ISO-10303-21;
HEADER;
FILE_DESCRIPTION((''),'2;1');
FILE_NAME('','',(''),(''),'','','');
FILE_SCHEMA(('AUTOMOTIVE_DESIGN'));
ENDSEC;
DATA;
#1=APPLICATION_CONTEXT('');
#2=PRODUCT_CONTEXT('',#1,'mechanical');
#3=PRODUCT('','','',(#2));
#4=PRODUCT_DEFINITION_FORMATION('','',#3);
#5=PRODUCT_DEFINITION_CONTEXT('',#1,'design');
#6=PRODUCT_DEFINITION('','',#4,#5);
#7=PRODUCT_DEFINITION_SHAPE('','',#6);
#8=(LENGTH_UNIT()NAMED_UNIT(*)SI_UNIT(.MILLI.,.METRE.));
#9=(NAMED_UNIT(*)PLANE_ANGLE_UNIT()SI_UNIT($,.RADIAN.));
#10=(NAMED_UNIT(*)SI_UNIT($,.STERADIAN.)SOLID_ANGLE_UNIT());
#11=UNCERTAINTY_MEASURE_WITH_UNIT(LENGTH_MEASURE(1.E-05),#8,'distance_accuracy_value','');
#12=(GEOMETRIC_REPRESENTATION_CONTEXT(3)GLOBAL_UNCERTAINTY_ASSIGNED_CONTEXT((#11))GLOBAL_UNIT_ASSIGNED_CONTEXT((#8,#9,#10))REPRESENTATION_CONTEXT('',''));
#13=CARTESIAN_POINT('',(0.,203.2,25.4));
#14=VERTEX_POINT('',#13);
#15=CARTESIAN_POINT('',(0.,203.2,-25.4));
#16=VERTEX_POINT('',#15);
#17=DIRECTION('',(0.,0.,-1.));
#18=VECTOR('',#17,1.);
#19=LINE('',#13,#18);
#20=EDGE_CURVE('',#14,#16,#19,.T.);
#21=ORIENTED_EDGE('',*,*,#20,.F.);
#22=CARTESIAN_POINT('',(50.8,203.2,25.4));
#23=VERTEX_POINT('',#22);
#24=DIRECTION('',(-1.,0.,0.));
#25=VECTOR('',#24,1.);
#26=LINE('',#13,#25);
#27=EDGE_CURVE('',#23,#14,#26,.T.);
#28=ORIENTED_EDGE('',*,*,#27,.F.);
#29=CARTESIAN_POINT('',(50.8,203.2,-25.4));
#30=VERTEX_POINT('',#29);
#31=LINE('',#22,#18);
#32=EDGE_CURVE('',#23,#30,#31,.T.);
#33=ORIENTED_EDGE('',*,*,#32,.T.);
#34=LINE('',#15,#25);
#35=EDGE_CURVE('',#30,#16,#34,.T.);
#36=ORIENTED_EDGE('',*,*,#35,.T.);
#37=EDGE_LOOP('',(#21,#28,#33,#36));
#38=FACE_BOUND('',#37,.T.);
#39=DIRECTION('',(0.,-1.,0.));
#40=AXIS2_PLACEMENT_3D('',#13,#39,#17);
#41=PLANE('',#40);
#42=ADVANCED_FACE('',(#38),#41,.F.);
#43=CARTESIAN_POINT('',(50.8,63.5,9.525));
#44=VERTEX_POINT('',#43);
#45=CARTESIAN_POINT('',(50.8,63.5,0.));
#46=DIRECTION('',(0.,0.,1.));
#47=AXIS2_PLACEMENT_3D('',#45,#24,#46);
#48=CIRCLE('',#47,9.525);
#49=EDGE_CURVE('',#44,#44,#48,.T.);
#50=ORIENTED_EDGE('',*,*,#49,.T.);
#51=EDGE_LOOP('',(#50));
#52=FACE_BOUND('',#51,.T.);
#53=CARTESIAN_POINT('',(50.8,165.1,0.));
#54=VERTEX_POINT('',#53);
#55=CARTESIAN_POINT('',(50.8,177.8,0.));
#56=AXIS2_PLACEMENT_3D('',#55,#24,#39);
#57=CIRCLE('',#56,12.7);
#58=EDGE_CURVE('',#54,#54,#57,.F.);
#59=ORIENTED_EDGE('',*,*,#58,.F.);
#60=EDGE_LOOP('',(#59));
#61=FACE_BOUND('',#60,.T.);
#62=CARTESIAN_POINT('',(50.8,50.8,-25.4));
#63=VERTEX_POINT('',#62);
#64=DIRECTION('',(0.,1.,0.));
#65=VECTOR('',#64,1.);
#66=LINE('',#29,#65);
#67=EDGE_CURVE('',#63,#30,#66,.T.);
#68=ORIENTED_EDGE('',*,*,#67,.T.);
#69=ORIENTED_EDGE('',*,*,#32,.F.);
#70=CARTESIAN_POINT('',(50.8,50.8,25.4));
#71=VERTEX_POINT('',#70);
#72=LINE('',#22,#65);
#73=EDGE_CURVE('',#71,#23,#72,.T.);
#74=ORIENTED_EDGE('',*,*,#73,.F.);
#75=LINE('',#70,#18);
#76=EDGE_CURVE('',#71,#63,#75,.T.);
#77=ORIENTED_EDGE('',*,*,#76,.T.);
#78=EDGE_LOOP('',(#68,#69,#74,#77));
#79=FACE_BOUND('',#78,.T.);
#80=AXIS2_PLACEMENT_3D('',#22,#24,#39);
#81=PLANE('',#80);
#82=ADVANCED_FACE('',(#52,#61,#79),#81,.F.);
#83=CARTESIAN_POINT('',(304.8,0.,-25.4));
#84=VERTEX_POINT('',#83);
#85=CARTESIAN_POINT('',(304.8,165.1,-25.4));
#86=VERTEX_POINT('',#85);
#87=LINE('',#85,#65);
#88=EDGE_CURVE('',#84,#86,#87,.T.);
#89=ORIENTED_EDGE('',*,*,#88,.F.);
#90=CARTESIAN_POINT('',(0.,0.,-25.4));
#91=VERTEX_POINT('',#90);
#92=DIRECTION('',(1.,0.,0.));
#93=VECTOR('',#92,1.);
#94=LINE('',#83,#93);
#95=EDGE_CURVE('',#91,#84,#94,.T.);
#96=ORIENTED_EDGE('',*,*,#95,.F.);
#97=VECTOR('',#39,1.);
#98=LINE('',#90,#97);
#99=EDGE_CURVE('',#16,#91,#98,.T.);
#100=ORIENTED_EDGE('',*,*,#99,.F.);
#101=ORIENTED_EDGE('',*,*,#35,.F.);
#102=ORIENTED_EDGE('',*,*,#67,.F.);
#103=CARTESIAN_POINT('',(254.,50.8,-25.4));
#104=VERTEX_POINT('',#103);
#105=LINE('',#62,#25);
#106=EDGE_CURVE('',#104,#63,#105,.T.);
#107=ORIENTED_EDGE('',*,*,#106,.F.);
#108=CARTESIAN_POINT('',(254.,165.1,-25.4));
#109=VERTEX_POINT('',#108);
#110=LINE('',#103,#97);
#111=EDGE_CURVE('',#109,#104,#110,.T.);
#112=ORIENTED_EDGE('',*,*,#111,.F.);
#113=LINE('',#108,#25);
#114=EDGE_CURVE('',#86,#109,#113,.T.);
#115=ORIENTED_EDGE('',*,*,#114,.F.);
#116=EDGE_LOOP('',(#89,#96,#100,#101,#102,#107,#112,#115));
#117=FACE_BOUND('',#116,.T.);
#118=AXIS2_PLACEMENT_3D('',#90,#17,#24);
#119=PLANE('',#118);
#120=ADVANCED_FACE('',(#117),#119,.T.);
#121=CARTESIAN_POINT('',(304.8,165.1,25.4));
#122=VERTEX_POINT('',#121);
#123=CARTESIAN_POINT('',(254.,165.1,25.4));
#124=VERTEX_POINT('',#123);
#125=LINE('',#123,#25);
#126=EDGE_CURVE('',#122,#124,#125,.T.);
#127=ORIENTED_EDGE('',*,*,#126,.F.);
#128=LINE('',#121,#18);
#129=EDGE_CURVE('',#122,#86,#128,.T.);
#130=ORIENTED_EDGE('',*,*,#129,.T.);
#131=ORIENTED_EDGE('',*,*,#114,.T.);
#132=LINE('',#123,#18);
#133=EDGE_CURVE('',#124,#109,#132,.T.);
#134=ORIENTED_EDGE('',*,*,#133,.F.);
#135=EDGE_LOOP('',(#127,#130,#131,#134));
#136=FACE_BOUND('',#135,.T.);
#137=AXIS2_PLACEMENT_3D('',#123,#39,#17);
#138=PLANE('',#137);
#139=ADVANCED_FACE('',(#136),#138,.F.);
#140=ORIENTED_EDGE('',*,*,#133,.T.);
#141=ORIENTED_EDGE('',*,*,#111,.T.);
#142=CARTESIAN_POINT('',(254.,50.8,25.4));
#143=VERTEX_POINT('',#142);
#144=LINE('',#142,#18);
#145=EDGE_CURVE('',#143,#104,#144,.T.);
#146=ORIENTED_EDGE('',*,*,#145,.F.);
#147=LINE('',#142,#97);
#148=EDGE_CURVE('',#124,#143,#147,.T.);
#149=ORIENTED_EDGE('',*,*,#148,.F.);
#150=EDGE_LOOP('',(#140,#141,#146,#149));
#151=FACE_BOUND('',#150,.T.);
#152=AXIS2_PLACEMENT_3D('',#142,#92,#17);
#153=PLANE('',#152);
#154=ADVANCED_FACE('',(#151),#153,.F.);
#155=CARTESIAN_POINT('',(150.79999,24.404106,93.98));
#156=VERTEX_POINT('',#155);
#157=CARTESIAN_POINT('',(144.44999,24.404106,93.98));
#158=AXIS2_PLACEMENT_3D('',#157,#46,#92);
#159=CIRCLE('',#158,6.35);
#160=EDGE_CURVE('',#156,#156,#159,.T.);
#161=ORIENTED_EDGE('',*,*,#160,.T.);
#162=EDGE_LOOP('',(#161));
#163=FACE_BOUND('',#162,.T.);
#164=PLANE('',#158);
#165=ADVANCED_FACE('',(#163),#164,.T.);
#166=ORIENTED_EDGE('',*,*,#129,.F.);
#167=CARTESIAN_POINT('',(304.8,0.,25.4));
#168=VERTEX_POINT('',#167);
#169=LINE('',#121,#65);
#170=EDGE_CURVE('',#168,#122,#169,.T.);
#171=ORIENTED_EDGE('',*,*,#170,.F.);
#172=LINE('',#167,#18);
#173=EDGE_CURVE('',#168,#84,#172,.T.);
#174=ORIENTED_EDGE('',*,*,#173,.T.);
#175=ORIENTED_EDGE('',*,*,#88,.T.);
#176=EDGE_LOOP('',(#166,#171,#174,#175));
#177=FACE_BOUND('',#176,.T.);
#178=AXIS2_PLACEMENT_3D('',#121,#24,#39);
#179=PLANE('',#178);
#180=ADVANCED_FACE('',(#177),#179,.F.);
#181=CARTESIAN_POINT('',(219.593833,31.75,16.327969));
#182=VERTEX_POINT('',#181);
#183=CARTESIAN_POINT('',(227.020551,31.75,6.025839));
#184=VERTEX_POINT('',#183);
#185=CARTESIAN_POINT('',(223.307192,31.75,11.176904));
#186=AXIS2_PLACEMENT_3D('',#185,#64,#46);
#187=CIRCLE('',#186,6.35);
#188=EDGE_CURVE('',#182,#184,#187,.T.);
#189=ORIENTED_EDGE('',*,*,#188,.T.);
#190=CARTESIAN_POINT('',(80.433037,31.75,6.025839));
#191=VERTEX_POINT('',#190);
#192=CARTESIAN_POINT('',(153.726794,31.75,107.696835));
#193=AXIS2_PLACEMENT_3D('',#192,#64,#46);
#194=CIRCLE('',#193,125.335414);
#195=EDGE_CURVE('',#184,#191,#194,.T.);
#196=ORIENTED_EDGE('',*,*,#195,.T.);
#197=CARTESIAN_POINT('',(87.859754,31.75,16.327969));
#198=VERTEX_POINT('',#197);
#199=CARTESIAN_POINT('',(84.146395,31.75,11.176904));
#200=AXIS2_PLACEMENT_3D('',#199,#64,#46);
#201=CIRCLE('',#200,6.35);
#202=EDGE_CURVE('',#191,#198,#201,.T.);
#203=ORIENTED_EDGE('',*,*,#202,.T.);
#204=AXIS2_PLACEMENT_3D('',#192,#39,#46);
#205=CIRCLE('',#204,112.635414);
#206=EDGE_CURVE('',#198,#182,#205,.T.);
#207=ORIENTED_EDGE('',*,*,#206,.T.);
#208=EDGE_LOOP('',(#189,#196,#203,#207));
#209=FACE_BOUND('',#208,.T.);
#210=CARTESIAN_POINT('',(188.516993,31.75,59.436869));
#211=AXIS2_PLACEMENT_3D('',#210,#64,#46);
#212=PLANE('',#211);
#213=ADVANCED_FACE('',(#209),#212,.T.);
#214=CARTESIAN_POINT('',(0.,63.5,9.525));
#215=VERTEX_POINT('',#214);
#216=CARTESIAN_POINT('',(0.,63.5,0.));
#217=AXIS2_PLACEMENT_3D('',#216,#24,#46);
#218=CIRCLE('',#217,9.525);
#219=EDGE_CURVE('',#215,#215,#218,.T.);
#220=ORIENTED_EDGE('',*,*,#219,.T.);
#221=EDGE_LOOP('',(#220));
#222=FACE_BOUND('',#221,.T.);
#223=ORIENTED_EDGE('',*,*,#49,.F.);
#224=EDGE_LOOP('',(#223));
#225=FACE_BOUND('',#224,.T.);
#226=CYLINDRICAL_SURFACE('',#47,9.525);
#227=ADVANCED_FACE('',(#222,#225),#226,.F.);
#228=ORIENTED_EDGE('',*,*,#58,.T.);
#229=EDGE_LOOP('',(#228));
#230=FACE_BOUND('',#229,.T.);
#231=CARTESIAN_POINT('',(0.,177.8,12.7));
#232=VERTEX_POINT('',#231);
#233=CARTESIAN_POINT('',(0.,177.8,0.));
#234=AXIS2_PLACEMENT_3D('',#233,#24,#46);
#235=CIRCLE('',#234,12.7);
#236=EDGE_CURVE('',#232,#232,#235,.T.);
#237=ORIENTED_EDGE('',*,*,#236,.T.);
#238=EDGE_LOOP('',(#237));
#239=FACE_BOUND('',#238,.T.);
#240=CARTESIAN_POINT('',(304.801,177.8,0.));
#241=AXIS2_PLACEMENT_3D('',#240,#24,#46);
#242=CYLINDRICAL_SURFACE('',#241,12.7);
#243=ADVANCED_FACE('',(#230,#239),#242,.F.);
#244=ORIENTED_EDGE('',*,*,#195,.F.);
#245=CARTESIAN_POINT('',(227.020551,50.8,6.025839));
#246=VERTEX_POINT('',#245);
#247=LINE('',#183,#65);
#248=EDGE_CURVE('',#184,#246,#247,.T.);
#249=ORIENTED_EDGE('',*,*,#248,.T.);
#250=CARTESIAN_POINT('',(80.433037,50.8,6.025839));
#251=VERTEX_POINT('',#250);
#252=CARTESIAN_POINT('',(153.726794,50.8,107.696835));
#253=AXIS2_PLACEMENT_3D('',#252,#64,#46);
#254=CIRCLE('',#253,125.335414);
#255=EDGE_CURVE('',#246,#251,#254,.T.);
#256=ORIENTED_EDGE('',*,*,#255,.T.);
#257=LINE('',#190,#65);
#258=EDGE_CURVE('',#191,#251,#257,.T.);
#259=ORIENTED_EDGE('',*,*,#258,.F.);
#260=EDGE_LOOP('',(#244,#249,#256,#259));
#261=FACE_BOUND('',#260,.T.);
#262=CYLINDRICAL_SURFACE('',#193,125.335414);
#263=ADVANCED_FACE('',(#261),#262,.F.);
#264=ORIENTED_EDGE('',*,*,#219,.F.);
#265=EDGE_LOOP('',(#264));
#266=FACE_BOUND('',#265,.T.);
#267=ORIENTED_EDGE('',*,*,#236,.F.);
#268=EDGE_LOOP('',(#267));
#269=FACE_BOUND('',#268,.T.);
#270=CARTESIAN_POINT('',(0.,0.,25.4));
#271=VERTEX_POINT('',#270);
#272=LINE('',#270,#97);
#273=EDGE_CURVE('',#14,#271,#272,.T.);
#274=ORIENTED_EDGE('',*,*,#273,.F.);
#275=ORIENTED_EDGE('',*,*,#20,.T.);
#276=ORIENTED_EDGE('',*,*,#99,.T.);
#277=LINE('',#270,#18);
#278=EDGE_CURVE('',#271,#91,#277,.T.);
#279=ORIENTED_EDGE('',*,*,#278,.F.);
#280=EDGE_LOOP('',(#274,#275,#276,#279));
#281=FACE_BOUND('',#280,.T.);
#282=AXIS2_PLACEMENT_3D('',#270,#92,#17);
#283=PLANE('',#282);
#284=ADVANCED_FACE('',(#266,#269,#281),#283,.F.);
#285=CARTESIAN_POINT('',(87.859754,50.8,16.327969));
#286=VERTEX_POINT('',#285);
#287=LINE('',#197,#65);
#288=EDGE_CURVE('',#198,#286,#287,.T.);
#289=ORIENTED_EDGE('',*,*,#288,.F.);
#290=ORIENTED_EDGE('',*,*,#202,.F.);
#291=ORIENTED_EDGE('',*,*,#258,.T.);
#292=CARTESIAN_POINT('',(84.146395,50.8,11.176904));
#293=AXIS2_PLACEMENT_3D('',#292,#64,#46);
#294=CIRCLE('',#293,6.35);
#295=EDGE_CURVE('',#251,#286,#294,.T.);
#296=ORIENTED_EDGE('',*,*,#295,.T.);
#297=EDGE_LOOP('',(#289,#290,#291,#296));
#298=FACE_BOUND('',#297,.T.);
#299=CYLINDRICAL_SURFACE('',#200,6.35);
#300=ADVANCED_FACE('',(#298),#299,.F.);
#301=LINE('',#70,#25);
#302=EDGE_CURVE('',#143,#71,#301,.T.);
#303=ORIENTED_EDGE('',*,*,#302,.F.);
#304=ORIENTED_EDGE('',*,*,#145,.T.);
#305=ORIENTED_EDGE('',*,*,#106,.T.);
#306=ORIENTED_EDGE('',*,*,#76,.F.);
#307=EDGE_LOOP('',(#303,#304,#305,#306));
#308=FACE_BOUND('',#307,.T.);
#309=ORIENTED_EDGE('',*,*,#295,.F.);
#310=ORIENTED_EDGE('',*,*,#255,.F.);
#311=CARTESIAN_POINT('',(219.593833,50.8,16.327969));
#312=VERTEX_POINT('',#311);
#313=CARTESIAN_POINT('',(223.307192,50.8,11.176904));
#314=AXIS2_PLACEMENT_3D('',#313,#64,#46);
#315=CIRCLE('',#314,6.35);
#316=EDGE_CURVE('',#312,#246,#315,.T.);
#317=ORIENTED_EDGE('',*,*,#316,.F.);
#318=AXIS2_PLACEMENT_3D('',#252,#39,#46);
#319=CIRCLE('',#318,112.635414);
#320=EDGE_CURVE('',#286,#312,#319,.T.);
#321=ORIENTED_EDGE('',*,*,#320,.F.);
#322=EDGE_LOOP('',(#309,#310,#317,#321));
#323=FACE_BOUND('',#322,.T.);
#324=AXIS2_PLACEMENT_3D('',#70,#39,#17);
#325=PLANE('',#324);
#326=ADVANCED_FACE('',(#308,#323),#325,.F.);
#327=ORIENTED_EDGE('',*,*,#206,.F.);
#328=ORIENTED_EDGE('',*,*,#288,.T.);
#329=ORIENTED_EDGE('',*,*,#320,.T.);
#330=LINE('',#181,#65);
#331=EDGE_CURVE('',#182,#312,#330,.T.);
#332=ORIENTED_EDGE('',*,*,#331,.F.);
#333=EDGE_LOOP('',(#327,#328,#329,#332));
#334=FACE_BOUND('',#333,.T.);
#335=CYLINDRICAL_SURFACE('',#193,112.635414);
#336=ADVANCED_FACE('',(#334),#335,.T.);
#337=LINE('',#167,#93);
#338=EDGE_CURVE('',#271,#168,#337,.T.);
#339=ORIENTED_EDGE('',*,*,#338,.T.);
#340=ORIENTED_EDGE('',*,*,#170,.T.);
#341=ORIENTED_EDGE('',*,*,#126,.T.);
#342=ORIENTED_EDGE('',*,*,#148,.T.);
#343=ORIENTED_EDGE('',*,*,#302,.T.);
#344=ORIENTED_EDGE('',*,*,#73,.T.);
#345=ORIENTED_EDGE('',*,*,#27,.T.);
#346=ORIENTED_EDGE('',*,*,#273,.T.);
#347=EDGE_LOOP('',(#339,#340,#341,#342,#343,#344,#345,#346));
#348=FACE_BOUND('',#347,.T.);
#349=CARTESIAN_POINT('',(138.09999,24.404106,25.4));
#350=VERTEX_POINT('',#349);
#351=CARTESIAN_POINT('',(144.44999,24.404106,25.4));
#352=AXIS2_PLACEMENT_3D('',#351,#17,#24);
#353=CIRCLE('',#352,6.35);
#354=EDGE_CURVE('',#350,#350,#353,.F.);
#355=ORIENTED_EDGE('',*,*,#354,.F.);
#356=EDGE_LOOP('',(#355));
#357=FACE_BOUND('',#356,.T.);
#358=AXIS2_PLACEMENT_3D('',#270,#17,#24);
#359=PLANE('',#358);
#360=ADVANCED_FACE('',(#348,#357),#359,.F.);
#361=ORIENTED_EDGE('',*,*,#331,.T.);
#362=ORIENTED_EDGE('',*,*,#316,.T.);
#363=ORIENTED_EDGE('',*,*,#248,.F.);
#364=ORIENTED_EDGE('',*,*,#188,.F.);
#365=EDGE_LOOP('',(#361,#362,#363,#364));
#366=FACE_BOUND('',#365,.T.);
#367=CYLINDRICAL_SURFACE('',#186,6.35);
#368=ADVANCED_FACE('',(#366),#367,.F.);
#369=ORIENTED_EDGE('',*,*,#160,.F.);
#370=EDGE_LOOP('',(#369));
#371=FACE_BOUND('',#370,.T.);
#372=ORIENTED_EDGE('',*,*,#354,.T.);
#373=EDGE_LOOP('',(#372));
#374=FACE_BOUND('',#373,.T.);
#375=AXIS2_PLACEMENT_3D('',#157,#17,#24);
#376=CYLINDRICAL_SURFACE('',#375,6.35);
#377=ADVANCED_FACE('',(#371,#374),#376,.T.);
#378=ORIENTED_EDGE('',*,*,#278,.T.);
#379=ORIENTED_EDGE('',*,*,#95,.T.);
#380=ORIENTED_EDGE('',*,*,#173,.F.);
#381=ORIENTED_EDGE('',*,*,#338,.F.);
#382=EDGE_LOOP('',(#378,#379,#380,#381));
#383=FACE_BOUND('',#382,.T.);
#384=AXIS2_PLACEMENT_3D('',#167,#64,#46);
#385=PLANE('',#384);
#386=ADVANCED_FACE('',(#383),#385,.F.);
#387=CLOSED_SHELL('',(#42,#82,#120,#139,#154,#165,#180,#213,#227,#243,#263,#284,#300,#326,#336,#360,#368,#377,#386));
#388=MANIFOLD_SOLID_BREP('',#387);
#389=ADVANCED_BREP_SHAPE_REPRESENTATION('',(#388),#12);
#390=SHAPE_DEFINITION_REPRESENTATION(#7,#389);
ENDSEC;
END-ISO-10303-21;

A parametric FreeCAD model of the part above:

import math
import FreeCAD as App
import Part
import Sketcher
Q = App.Units.Quantity

doc = App.newDocument("Part")
body = doc.addObject("PartDesign::Body", "Body")

# Sketch on XY plane
sketch1 = body.newObject("Sketcher::SketchObject", "Sketch")
sketch1.AttachmentSupport = (doc.getObject("XY_Plane"), [""])
sketch1.MapMode = "FlatFace"
sketch1.addGeometry([
    Part.LineSegment(App.Vector(0, 203, 0), App.Vector(0, 0, 0)),  # 0
    Part.LineSegment(App.Vector(0, 0, 0), App.Vector(305, 0, 0)),  # 1
    Part.LineSegment(App.Vector(305, 0, 0), App.Vector(305, 165, 0)),  # 2
    Part.LineSegment(App.Vector(305, 165, 0), App.Vector(254, 165, 0)),  # 3
    Part.LineSegment(App.Vector(254, 165, 0), App.Vector(254, 51, 0)),  # 4
    Part.LineSegment(App.Vector(254, 51, 0), App.Vector(51, 51, 0)),  # 5
    Part.LineSegment(App.Vector(51, 51, 0), App.Vector(51, 203, 0)),  # 6
    Part.LineSegment(App.Vector(51, 203, 0), App.Vector(0, 203, 0)),  # 7
], False)
sketch1.addConstraint([
    Sketcher.Constraint("Coincident", 0, 2, 1, 1),
    Sketcher.Constraint("Coincident", 1, 2, 2, 1),
    Sketcher.Constraint("Coincident", 2, 2, 3, 1),
    Sketcher.Constraint("Coincident", 3, 2, 4, 1),
    Sketcher.Constraint("Coincident", 4, 2, 5, 1),
    Sketcher.Constraint("Coincident", 5, 2, 6, 1),
    Sketcher.Constraint("Coincident", 6, 2, 7, 1),
    Sketcher.Constraint("Coincident", 7, 2, 0, 1),
    Sketcher.Constraint("Vertical", 0),
    Sketcher.Constraint("Horizontal", 1),
    Sketcher.Constraint("Vertical", 2),
    Sketcher.Constraint("Horizontal", 3),
    Sketcher.Constraint("Vertical", 4),
    Sketcher.Constraint("Horizontal", 5),
    Sketcher.Constraint("Vertical", 6),
    Sketcher.Constraint("Horizontal", 7),
    Sketcher.Constraint("Coincident", 0, 2, -1, 1),
    Sketcher.Constraint("Equal", 3, 7),
    Sketcher.Constraint("Equal", 5, 0),
    Sketcher.Constraint("DistanceX", 1, 1, 1, 2, Q("12 in")),
    Sketcher.Constraint("DistanceX", 3, 2, 3, 1, Q("2 in")),
    Sketcher.Constraint("DistanceY", 6, 1, 6, 2, Q("6 in")),
    Sketcher.Constraint("DistanceY", 2, 1, 2, 2, Q("6.5 in")),
])
pad1 = body.newObject("PartDesign::Pad", "Pad")
pad1.Profile = sketch1
pad1.Length = Q("2 in")
pad1.Midplane = True

# Sketch on YZ plane
sketch2 = body.newObject("Sketcher::SketchObject", "Sketch001")
sketch2.AttachmentSupport = (doc.getObject("YZ_Plane"), [""])
sketch2.MapMode = "FlatFace"
sketch2.addGeometry(Part.Circle(App.Vector(178, 0, 0), App.Vector(0, 0, 1), 13), False)
sketch2.addConstraint([
    Sketcher.Constraint("PointOnObject", 0, 3, -1),
    Sketcher.Constraint("Diameter", 0, Q("1 in")),
    Sketcher.Constraint("DistanceX", -1, 1, 0, 3, Q("7 in")),
])
pocket1 = body.newObject("PartDesign::Pocket", "Pocket")
pocket1.Profile = sketch2
pocket1.Type = "UpToFirst"
pocket1.Reversed = True

# Sketch on YZ plane
sketch3 = body.newObject("Sketcher::SketchObject", "Sketch002")
sketch3.AttachmentSupport = (doc.getObject("YZ_Plane"), [""])
sketch3.MapMode = "FlatFace"
sketch3.addGeometry(Part.Circle(App.Vector(64, 0, 0), App.Vector(0, 0, 1), 10), False)
sketch3.addConstraint([
    Sketcher.Constraint("PointOnObject", 0, 3, -1),
    Sketcher.Constraint("Diameter", 0, Q("0.75 in")),
    Sketcher.Constraint("DistanceX", -1, 1, 0, 3, Q("2.5 in")),
])
pocket2 = body.newObject("PartDesign::Pocket", "Pocket001")
pocket2.Profile = sketch3
pocket2.Length = Q("2 in")
pocket2.Reversed = True

# Sketch on XY plane
sketch4 = body.newObject("Sketcher::SketchObject", "Sketch003")
sketch4.AttachmentSupport = (doc.getObject("XY_Plane"), [""])
sketch4.MapMode = "FlatFace"
sketch4.AttachmentOffset = App.Placement(App.Vector(0, 0, 1 * 25.4), App.Rotation())
sketch4.addGeometry(Part.Circle(App.Vector(144, 24, 0), App.Vector(0, 0, 1), 6), False)
sketch4.addConstraint([
    Sketcher.Constraint("Diameter", 0, Q("0.5 in")),
    Sketcher.Constraint("DistanceX", -1, 1, 0, 3, 144.44999),
    Sketcher.Constraint("DistanceY", -1, 1, 0, 3, 24.404106),
])
pad2 = body.newObject("PartDesign::Pad", "Pad001")
pad2.Profile = sketch4
pad2.Length = Q("2.7 in")

# Sketch on XZ plane
sketch5 = body.newObject("Sketcher::SketchObject", "Sketch004")
sketch5.AttachmentSupport = (doc.getObject("XZ_Plane"), [""])
sketch5.MapMode = "FlatFace"
sketch5.AttachmentOffset = App.Placement(App.Vector(0, 0, -2 * 25.4), App.Rotation())
sketch5.addGeometry([
    Part.ArcOfCircle(Part.Circle(App.Vector(154, 108, 0), App.Vector(0, 0, 1), 125), math.radians(-126), math.radians(-54)),
    Part.ArcOfCircle(Part.Circle(App.Vector(84, 11, 0), App.Vector(0, 0, 1), 6), math.radians(54), math.radians(234)),
    Part.ArcOfCircle(Part.Circle(App.Vector(154, 108, 0), App.Vector(0, 0, 1), 113), math.radians(-126), math.radians(-54)),
    Part.ArcOfCircle(Part.Circle(App.Vector(223, 11, 0), App.Vector(0, 0, 1), 6), math.radians(-54), math.radians(126)),
], False)
sketch5.addConstraint([
    Sketcher.Constraint("Tangent", 0, 1, 1, 2),
    Sketcher.Constraint("Tangent", 1, 1, 2, 1),
    Sketcher.Constraint("Tangent", 2, 2, 3, 2),
    Sketcher.Constraint("Tangent", 3, 1, 0, 2),
    Sketcher.Constraint("Coincident", 2, 3, 0, 3),
    Sketcher.Constraint("Horizontal", 1, 3, 3, 3),
    Sketcher.Constraint("Radius", 1, Q("0.25 in")),
    Sketcher.Constraint("Radius", 0, 125.335414),
    Sketcher.Constraint("DistanceX", 1, 3, 0, 3, 69.580398),
    Sketcher.Constraint("DistanceX", -1, 1, 3, 3, 223.307192),
    Sketcher.Constraint("DistanceY", -1, 1, 0, 1, 6.025839),
])
pocket3 = body.newObject("PartDesign::Pocket", "Pocket002")
pocket3.Profile = sketch5
pocket3.Length = Q("0.75 in")
pocket3.Reversed = True

doc.recompute()
